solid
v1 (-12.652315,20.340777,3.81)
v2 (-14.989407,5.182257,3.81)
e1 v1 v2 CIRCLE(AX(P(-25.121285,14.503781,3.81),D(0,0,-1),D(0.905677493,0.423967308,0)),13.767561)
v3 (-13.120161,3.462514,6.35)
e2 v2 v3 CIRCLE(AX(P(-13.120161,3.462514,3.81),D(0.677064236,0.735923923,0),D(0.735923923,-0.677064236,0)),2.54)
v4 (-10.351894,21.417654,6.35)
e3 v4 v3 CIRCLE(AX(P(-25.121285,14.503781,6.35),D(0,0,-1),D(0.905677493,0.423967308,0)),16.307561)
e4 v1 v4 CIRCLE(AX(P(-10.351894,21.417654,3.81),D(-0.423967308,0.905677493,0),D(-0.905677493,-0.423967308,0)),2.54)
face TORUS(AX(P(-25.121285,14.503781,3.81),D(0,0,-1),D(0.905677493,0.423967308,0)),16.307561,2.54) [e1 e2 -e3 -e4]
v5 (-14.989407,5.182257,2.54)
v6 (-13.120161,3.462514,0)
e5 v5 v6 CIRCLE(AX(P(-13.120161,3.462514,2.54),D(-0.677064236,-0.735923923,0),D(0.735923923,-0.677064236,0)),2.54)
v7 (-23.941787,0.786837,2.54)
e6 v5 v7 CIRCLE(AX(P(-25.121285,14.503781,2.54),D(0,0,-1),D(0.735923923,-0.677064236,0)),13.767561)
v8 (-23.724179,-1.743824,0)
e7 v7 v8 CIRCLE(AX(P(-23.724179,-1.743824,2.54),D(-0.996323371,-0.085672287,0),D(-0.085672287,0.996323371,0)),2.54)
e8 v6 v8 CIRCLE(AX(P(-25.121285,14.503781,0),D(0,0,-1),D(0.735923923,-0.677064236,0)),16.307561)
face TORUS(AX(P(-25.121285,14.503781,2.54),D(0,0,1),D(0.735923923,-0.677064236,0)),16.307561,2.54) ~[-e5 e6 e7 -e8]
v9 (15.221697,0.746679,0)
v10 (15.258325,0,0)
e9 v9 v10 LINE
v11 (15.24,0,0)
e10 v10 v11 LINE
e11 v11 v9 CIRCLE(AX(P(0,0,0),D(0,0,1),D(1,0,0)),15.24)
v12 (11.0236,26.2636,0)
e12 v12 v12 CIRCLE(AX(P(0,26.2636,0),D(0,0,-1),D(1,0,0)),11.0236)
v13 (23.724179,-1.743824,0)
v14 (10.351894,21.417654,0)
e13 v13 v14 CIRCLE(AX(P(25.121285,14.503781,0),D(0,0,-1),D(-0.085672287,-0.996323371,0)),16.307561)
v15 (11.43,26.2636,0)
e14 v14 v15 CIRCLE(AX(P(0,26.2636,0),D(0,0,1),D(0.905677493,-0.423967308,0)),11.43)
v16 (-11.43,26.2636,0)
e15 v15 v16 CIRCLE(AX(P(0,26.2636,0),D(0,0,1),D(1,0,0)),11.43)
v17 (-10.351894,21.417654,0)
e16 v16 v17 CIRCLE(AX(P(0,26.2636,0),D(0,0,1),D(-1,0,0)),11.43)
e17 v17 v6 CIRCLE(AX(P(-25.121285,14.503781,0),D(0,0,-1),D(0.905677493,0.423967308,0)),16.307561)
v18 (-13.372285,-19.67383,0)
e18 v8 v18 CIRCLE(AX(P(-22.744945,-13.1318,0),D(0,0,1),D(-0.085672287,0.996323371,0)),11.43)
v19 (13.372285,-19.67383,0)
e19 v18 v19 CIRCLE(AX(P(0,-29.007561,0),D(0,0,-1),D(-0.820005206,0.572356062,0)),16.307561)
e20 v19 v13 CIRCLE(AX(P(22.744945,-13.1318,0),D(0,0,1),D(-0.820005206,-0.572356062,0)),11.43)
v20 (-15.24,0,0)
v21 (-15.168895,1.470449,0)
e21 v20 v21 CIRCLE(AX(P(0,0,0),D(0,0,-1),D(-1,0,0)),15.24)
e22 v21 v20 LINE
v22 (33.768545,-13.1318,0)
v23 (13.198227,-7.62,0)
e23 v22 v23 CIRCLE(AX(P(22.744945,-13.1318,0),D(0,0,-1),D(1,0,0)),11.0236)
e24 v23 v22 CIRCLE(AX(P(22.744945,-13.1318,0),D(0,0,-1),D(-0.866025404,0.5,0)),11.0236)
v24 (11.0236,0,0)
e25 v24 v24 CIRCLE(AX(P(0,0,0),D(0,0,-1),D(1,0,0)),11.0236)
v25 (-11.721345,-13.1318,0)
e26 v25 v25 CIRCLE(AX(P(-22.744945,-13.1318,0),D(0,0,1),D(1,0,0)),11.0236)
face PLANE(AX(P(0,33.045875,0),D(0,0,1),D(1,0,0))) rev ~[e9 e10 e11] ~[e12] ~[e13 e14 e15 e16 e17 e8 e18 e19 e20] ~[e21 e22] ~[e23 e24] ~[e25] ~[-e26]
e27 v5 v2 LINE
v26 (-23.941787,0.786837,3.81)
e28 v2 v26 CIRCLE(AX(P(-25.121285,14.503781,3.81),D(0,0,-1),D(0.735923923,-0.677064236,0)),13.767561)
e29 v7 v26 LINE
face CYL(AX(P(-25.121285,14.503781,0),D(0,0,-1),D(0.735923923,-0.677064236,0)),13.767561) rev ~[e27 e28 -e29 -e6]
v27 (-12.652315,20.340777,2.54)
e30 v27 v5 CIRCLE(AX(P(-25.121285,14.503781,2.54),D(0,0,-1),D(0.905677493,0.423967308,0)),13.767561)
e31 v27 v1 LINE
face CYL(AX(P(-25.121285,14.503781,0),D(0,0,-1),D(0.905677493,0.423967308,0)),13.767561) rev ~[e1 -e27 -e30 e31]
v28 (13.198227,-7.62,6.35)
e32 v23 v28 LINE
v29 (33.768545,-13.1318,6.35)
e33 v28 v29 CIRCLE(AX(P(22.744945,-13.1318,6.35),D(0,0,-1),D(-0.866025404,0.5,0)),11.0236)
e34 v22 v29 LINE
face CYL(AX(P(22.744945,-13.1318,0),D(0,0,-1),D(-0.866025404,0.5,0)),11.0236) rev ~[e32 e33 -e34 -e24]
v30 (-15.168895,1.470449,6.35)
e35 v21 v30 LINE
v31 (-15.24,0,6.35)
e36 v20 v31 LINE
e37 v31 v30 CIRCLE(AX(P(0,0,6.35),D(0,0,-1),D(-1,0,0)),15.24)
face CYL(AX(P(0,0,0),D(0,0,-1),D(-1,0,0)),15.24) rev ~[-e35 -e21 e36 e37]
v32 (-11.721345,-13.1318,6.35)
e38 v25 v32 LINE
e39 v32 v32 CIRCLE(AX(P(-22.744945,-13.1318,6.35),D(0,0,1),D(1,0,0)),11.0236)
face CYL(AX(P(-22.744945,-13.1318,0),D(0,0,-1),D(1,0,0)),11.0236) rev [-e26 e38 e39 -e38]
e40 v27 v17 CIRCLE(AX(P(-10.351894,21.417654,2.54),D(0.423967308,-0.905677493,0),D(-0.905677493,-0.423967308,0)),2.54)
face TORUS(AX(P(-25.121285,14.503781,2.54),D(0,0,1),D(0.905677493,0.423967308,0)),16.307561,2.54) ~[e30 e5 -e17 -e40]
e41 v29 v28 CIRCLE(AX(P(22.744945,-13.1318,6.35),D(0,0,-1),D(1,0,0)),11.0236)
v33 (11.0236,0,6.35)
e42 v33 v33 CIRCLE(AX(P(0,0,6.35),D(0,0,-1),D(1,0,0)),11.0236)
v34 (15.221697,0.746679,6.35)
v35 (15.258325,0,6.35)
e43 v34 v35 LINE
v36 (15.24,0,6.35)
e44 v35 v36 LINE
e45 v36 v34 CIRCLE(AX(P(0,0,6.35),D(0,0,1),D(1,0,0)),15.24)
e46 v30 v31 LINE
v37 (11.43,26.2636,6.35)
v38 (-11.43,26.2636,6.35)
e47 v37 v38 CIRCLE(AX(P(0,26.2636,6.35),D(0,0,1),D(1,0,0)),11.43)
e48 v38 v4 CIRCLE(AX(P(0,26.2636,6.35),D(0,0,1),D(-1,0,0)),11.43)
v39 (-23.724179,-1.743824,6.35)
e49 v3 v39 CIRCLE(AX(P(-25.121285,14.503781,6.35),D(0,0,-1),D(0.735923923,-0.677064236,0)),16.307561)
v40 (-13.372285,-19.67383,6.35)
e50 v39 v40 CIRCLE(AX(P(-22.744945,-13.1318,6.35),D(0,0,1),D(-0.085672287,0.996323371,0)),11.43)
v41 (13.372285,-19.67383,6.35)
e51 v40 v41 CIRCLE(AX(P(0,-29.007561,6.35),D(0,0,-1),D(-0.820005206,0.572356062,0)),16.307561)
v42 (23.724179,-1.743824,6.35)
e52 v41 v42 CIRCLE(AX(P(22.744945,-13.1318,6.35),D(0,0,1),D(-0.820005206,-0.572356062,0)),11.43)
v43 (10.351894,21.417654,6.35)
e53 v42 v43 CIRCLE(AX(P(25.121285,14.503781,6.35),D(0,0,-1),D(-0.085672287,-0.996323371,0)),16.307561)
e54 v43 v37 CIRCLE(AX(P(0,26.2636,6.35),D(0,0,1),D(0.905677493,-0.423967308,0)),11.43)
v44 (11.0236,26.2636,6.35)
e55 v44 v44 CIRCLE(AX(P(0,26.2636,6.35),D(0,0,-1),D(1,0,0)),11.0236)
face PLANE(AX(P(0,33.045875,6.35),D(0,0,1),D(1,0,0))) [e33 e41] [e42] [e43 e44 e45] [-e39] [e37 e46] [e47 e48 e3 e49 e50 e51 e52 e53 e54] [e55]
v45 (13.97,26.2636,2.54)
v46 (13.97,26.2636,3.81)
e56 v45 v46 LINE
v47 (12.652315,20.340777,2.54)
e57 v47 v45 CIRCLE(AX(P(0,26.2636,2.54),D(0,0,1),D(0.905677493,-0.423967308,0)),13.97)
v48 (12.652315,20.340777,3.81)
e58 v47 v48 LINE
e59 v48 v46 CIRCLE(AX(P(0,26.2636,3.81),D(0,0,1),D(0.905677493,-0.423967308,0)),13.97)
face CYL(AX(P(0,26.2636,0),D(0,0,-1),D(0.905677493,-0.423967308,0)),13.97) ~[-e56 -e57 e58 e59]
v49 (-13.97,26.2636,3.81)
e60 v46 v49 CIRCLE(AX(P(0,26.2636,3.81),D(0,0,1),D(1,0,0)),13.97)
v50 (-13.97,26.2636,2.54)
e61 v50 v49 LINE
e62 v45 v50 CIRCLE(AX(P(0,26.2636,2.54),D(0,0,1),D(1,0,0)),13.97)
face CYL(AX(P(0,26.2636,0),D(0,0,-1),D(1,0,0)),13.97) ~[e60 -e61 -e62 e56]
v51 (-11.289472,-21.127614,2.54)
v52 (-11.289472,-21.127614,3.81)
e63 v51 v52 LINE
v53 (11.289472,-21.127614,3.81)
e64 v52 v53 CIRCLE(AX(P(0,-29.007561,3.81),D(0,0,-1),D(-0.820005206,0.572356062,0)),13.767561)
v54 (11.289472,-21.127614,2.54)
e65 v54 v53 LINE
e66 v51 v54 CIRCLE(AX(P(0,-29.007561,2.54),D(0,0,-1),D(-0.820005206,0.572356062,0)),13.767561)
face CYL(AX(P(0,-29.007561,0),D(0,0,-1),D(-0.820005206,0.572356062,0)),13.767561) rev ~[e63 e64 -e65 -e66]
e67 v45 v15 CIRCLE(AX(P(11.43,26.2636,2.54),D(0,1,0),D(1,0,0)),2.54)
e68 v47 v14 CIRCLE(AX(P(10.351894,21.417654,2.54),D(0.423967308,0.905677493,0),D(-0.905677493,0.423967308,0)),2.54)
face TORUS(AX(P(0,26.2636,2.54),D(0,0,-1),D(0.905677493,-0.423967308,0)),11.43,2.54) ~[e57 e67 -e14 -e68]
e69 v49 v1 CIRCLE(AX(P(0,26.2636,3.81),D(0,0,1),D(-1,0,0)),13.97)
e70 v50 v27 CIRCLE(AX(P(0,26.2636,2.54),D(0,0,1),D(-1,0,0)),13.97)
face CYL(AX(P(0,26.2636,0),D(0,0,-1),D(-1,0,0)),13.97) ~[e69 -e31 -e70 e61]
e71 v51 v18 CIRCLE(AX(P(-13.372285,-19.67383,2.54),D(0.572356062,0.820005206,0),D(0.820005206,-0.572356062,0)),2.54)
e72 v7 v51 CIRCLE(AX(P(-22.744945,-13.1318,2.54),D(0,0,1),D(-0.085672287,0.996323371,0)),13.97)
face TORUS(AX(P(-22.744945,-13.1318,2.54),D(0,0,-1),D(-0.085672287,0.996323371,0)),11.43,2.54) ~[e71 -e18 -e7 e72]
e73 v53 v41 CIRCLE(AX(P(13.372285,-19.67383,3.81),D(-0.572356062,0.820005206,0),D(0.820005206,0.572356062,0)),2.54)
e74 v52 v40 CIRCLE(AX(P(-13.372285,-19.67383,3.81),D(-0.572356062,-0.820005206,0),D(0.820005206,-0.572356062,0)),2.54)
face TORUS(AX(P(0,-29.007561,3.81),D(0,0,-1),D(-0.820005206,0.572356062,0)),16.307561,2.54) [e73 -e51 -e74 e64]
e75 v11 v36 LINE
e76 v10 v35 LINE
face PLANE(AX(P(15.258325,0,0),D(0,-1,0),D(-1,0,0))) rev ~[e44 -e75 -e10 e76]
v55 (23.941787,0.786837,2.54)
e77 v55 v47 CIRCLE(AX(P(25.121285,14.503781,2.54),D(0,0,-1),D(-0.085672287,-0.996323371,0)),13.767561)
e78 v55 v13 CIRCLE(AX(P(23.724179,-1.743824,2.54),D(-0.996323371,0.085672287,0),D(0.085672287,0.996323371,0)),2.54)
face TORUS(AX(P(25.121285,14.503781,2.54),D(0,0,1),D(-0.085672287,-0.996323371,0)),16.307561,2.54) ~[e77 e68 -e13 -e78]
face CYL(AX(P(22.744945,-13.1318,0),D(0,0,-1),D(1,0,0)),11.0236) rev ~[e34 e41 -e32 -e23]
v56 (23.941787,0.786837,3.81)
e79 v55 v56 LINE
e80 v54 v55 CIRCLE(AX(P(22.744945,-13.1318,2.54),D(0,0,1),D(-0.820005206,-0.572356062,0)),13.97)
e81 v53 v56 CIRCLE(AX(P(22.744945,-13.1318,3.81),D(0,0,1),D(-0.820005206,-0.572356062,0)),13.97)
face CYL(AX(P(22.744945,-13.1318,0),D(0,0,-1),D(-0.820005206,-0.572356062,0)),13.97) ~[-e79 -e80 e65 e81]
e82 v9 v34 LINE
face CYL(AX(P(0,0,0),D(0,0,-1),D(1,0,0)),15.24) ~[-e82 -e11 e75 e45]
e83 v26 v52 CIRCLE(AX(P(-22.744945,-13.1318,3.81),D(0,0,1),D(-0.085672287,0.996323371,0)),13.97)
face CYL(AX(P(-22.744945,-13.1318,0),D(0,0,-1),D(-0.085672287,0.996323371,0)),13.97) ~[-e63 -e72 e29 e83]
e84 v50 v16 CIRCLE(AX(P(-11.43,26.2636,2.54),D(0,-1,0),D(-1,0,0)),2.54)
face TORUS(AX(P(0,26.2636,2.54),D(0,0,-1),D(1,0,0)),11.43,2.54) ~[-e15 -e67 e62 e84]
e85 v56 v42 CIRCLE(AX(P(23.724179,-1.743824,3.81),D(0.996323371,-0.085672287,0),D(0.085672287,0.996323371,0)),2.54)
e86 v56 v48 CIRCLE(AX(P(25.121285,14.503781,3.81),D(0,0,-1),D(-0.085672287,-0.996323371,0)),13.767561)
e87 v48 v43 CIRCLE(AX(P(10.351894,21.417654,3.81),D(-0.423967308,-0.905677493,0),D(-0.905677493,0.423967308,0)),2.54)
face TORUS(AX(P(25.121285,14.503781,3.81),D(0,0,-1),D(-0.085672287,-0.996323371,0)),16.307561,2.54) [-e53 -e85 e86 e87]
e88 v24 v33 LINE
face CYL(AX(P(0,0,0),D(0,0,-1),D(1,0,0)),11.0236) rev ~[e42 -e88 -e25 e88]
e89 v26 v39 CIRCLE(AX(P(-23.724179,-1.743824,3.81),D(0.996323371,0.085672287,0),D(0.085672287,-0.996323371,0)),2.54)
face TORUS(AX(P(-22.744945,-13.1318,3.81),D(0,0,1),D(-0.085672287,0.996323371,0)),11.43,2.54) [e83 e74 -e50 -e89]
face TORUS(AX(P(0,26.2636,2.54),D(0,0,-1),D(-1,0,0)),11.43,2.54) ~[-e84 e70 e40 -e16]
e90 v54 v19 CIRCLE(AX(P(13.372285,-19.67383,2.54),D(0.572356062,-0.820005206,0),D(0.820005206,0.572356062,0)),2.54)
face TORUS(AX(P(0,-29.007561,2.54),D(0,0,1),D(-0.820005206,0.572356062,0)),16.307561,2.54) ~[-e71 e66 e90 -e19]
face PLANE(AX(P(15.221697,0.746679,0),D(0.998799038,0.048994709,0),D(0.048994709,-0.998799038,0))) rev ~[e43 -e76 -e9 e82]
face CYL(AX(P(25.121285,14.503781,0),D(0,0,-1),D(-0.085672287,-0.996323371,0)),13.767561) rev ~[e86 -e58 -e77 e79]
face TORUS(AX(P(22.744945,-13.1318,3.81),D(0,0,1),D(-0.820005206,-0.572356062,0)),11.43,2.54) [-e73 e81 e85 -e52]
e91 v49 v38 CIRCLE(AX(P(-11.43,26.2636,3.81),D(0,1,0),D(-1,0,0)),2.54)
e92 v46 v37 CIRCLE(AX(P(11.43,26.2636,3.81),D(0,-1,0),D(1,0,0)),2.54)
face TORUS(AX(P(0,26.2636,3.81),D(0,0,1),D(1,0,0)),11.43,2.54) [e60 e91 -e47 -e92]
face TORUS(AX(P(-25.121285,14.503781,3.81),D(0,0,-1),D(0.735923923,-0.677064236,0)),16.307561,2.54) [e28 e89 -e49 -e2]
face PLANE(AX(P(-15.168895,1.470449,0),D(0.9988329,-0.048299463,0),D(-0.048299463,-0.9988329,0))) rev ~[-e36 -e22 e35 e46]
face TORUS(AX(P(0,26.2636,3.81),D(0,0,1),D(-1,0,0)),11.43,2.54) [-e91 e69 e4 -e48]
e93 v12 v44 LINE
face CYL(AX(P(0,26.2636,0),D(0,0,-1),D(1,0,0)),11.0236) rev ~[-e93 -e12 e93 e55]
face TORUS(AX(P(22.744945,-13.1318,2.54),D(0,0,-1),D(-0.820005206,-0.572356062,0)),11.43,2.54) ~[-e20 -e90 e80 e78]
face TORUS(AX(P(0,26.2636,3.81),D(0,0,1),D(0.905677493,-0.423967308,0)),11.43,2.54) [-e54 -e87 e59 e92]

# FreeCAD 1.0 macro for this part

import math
import FreeCAD as App
import Part
import Sketcher

V = App.Vector
Q = App.Units.Quantity


def edges_at(feature, points):
    """Names of the edges that pass closest to the given points."""
    edges = feature.Shape.Edges
    near = lambda p: min(range(len(edges)), key=lambda i: edges[i].distToShape(Part.Vertex(*p))[0])
    return sorted({f"Edge{near(p) + 1}" for p in points})

doc = App.newDocument("Part")
body = doc.addObject("PartDesign::Body", "Body")

# Sketch on XY plane
sketch1 = body.newObject("Sketcher::SketchObject", "Sketch")
sketch1.AttachmentSupport = (doc.getObject("XY_Plane"), [""])
sketch1.MapMode = "FlatFace"
sketch1.addGeometry(Part.ArcOfCircle(Part.Circle(V(-22.745, -13.132, 0), V(0, 0, 1), 13.97), math.radians(95), math.radians(325)), False)
sketch1.addGeometry(Part.ArcOfCircle(Part.Circle(V(0, -29.008, 0), V(0, 0, 1), 13.768), math.radians(35), math.radians(145)), False)
sketch1.addGeometry(Part.ArcOfCircle(Part.Circle(V(22.745, -13.132, 0), V(0, 0, 1), 13.97), math.radians(-145), math.radians(85)), False)
sketch1.addGeometry(Part.ArcOfCircle(Part.Circle(V(25.121, 14.504, 0), V(0, 0, 1), 13.768), math.radians(155), math.radians(265)), False)
sketch1.addGeometry(Part.ArcOfCircle(Part.Circle(V(0, 26.264, 0), V(0, 0, 1), 13.97), math.radians(-25), math.radians(0)), False)
sketch1.addGeometry(Part.ArcOfCircle(Part.Circle(V(0, 26.264, 0), V(0, 0, 1), 13.97), math.radians(0), math.radians(180)), False)
sketch1.addGeometry(Part.ArcOfCircle(Part.Circle(V(0, 26.264, 0), V(0, 0, 1), 13.97), math.radians(180), math.radians(205)), False)
sketch1.addGeometry(Part.ArcOfCircle(Part.Circle(V(-25.121, 14.504, 0), V(0, 0, 1), 13.768), math.radians(-43), math.radians(25)), False)
sketch1.addGeometry(Part.ArcOfCircle(Part.Circle(V(-25.121, 14.504, 0), V(0, 0, 1), 13.768), math.radians(-85), math.radians(-43)), False)
sketch1.addGeometry(Part.Circle(V(-22.745, -13.132, 0), V(0, 0, 1), 11.024), False)
sketch1.addGeometry(Part.LineSegment(V(-15.169, 1.47, 0), V(-15.24, 0, 0)), False)
sketch1.addGeometry(Part.ArcOfCircle(Part.Circle(V(0, 0, 0), V(0, 0, 1), 15.24), math.radians(174.46), math.radians(180)), False)
sketch1.addGeometry(Part.Circle(V(0, 0, 0), V(0, 0, 1), 11.024), False)
sketch1.addGeometry(Part.ArcOfCircle(Part.Circle(V(22.745, -13.132, 0), V(0, 0, 1), 11.024), math.radians(0), math.radians(150)), False)
sketch1.addGeometry(Part.ArcOfCircle(Part.Circle(V(22.745, -13.132, 0), V(0, 0, 1), 11.024), math.radians(150), math.radians(360)), False)
sketch1.addGeometry(Part.LineSegment(V(15.258, 0, 0), V(15.24, 0, 0)), False)
sketch1.addGeometry(Part.ArcOfCircle(Part.Circle(V(0, 0, 0), V(0, 0, 1), 15.24), math.radians(0), math.radians(2.81)), False)
sketch1.addGeometry(Part.LineSegment(V(15.222, 0.747, 0), V(15.258, 0, 0)), False)
sketch1.addGeometry(Part.Circle(V(0, 26.264, 0), V(0, 0, 1), 11.024), False)
sketch1.addConstraint(Sketcher.Constraint("Tangent", 0, 2, 1, 2))
sketch1.addConstraint(Sketcher.Constraint("Tangent", 1, 1, 2, 1))
sketch1.addConstraint(Sketcher.Constraint("Tangent", 2, 2, 3, 2))
sketch1.addConstraint(Sketcher.Constraint("Tangent", 3, 1, 4, 1))
sketch1.addConstraint(Sketcher.Constraint("Tangent", 4, 2, 5, 1))
sketch1.addConstraint(Sketcher.Constraint("Tangent", 5, 2, 6, 1))
sketch1.addConstraint(Sketcher.Constraint("Tangent", 6, 2, 7, 2))
sketch1.addConstraint(Sketcher.Constraint("Tangent", 7, 1, 8, 2))
sketch1.addConstraint(Sketcher.Constraint("Tangent", 8, 1, 0, 1))
sketch1.addConstraint(Sketcher.Constraint("Coincident", 10, 1, 11, 1))
sketch1.addConstraint(Sketcher.Constraint("Coincident", 11, 2, 10, 2))
sketch1.addConstraint(Sketcher.Constraint("Tangent", 13, 1, 14, 2))
sketch1.addConstraint(Sketcher.Constraint("Coincident", 14, 1, 13, 2))
sketch1.addConstraint(Sketcher.Constraint("Coincident", 15, 2, 16, 1))
sketch1.addConstraint(Sketcher.Constraint("Tangent", 16, 2, 17, 1))
sketch1.addConstraint(Sketcher.Constraint("Coincident", 17, 2, 15, 1))
sketch1.addConstraint(Sketcher.Constraint("Horizontal", 15))
sketch1.addConstraint(Sketcher.Constraint("Coincident", 11, 3, -1, 1))
sketch1.addConstraint(Sketcher.Constraint("Coincident", 12, 3, -1, 1))
sketch1.addConstraint(Sketcher.Constraint("Coincident", 16, 3, -1, 1))
sketch1.addConstraint(Sketcher.Constraint("Coincident", 9, 3, 0, 3))
sketch1.addConstraint(Sketcher.Constraint("Coincident", 13, 3, 2, 3))
sketch1.addConstraint(Sketcher.Constraint("Coincident", 18, 3, 4, 3))
sketch1.addConstraint(Sketcher.Constraint("Equal", 0, 2))
sketch1.addConstraint(Sketcher.Constraint("Equal", 1, 3))
sketch1.addConstraint(Sketcher.Constraint("Equal", 2, 4))
sketch1.addConstraint(Sketcher.Constraint("Equal", 4, 5))
sketch1.addConstraint(Sketcher.Constraint("Equal", 5, 6))
sketch1.addConstraint(Sketcher.Constraint("Equal", 3, 7))
sketch1.addConstraint(Sketcher.Constraint("Equal", 7, 8))
sketch1.addConstraint(Sketcher.Constraint("Equal", 9, 12))
sketch1.addConstraint(Sketcher.Constraint("Equal", 12, 13))
sketch1.addConstraint(Sketcher.Constraint("Equal", 11, 16))
sketch1.addConstraint(Sketcher.Constraint("Equal", 14, 18))
sketch1.addConstraint(Sketcher.Constraint("Symmetric", 0, 3, 2, 3, -2))
sketch1.addConstraint(Sketcher.Constraint("Symmetric", 4, 2, 5, 2, -2))
sketch1.addConstraint(Sketcher.Constraint("PointOnObject", 11, 2, -1))
sketch1.addConstraint(Sketcher.Constraint("PointOnObject", 15, 2, -1))
sketch1.addConstraint(Sketcher.Constraint("Horizontal", 18, 3, 4, 2))
sketch1.addConstraint(Sketcher.Constraint("Horizontal", 14, 3, 13, 1))
sketch1.addConstraint(Sketcher.Constraint("Radius", 11, Q("0.6 in")))
sketch1.addConstraint(Sketcher.Constraint("Radius", 0, Q("0.55 in")))
sketch1.addConstraint(Sketcher.Constraint("Diameter", 9, Q("0.868 in")))
sketch1.addConstraint(Sketcher.Constraint("DistanceY", 14, 1, -1, 1, Q("0.3 in")))
sketch1.addConstraint(Sketcher.Constraint("DistanceY", 0, 3, -1, 1, Q("0.517 in")))
sketch1.addConstraint(Sketcher.Constraint("DistanceY", -1, 1, 4, 3, Q("1.034 in")))
sketch1.addConstraint(Sketcher.Constraint("Radius", 1, Q("13.767561 mm")))
sketch1.addConstraint(Sketcher.Constraint("DistanceX", 2, 2, 3, 3, Q("1.179498 mm")))
sketch1.addConstraint(Sketcher.Constraint("DistanceX", 15, 2, 15, 1, Q("0.018325 mm")))
sketch1.addConstraint(Sketcher.Constraint("DistanceY", -1, 1, 10, 1, Q("1.470449 mm")))
sketch1.addConstraint(Sketcher.Constraint("DistanceY", 7, 1, 6, 2, Q("15.158519 mm")))
pad1 = body.newObject("PartDesign::Pad", "Pad")
pad1.Profile = sketch1
pad1.Length = Q("0.25 in")
doc.recompute()

fillet = body.newObject("PartDesign::Fillet", "Fillet")
fillet.Base = (pad1, edges_at(pad1, [
    (0, 40.234, 6.35),
    (-11.514, 12.406, 6.35),
    (-34.843, -20.117, 6.35),
    (0, -15.24, 6.35),
    (34.843, -20.117, 6.35),
    (13.198, 7.62, 6.35),
    (-23.942, 0.787, 3.175),
    (-11.289, -21.128, 3.175),
    (-34.843, -20.117, 0),
    (11.289, -21.128, 3.175),
    (0, -15.24, 0),
    (23.942, 0.787, 3.175),
    (34.843, -20.117, 0),
    (12.652, 20.341, 3.175),
    (13.198, 7.62, 0),
    (0, 40.234, 0),
    (-11.514, 12.406, 0),
]))
fillet.Radius = Q("0.1 in")

doc.recompute()
